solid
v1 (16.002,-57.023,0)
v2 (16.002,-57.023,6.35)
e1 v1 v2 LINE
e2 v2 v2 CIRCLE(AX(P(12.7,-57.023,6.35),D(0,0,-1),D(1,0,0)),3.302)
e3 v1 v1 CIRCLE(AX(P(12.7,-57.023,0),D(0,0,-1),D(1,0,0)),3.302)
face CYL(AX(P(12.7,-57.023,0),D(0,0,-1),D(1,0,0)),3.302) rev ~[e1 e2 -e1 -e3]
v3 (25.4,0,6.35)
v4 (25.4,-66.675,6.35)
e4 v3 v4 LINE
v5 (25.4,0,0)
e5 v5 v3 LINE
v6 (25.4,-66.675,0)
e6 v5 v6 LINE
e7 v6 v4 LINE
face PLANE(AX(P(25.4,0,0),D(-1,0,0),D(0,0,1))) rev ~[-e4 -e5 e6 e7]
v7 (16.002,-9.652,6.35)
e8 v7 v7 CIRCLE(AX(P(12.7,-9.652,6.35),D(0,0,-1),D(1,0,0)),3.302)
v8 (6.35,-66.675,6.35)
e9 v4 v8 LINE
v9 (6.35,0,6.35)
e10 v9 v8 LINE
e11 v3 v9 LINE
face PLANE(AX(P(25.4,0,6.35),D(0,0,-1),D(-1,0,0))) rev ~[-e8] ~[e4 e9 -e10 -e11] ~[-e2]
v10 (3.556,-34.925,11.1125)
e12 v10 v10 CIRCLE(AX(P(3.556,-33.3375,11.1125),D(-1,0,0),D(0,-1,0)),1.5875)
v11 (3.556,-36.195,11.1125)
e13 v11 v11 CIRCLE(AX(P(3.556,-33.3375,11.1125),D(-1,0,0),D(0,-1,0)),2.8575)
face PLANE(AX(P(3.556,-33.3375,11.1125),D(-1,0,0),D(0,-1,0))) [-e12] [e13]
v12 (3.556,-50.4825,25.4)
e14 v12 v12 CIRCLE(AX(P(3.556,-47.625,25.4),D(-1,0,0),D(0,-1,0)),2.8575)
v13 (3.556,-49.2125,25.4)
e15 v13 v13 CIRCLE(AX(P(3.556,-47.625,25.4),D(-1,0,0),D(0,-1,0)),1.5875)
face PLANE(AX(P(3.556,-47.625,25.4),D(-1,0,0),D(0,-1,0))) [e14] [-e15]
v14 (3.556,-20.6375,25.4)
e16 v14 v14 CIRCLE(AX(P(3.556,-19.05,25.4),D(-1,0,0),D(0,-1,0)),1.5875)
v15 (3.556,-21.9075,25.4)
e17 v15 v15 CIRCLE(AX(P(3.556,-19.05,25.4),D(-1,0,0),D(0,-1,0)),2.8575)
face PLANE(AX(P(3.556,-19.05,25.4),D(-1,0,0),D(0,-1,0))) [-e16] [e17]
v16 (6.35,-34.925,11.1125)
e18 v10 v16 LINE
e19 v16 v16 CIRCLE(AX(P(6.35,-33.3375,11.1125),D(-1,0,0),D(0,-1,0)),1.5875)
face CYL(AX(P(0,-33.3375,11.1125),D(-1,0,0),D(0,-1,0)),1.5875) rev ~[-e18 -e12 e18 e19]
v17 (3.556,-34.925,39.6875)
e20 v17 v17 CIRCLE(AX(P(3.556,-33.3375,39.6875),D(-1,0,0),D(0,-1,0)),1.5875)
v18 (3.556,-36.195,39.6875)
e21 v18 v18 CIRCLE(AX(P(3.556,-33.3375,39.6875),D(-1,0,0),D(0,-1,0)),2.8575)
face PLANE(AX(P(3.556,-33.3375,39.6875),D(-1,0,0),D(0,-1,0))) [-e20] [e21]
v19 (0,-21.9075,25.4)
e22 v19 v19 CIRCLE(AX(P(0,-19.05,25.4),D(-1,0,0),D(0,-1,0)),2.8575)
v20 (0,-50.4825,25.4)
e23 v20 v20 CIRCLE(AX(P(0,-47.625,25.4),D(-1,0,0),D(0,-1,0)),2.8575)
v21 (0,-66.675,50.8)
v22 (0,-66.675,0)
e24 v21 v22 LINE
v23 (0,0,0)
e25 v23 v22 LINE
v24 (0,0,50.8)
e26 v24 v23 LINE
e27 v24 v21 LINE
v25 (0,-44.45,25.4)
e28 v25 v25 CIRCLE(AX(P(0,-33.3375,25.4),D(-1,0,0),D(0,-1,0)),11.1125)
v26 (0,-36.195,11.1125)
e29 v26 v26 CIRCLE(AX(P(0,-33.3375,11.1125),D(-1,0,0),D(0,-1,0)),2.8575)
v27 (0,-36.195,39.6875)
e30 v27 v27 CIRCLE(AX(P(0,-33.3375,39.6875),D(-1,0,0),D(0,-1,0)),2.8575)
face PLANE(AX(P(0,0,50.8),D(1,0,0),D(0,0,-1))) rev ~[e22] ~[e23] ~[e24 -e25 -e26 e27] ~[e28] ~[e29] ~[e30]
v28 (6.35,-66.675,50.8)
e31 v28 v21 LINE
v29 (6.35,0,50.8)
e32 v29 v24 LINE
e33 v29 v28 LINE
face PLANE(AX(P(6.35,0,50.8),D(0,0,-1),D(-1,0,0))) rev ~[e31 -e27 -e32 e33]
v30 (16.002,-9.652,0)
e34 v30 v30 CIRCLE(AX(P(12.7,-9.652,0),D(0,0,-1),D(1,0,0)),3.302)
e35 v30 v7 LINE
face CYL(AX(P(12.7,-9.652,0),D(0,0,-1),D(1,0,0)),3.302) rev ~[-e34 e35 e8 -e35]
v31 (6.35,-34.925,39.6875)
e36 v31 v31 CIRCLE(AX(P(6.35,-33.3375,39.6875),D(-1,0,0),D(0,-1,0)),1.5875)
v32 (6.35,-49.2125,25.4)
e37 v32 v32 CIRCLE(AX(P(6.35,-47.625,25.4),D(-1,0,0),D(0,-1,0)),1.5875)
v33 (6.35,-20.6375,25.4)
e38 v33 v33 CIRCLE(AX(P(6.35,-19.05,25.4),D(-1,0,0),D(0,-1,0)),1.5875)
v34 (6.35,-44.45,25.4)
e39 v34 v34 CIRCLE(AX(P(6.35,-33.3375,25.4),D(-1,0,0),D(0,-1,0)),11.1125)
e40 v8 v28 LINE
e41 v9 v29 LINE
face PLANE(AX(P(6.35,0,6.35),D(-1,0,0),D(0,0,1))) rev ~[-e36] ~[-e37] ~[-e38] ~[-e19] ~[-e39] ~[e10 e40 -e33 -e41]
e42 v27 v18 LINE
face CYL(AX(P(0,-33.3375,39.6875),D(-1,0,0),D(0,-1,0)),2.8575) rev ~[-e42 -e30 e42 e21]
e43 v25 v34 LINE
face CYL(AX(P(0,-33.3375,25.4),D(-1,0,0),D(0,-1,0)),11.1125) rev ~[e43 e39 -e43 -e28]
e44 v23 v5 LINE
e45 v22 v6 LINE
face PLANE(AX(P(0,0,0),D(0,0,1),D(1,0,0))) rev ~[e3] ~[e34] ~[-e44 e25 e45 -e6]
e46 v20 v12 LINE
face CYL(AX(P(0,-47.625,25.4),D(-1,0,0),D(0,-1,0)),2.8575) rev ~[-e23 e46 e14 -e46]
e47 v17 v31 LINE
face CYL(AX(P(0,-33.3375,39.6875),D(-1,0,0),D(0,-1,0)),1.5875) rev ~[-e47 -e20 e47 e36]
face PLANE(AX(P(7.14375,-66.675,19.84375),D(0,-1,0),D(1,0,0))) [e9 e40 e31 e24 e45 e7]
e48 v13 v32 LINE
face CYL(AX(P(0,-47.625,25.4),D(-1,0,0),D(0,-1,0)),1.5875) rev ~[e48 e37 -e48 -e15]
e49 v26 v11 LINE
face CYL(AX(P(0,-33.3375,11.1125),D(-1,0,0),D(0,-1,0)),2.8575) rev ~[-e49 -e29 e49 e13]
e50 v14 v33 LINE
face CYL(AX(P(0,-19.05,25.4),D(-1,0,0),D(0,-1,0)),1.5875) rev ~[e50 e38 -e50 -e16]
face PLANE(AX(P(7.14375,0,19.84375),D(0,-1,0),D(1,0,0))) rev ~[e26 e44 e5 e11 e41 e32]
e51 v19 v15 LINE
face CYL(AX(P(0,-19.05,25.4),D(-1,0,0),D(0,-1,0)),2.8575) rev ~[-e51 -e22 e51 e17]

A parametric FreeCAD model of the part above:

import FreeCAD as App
import Part
import Sketcher
Q = App.Units.Quantity


def add_polygon(sketch, points):
    """Adds a closed chain of lines whose ends are joined by coincident constraints."""
    first, n = sketch.GeometryCount, len(points)
    for a, b in zip(points, points[1:] + points[:1]):
        sketch.addGeometry(Part.LineSegment(App.Vector(*a, 0), App.Vector(*b, 0)), False)
    for i in range(n):
        sketch.addConstraint(Sketcher.Constraint("Coincident", first + i, 2, first + (i + 1) % n, 1))

doc = App.newDocument("Part")
params = doc.addObject("Spreadsheet::Sheet", "Params")
for row, (alias, value) in enumerate([
    ("sketch1_width", "1 in"),
    ("sketch1_height", "2 in"),
    ("sketch1_width2", "0.75 in"),
    ("pad1_length", "2.625 in"),
    ("sketch2_diameter", "0.125 in"),
    ("sketch2_diameter2", "0.875 in"),
    ("sketch3_diameter", "0.225 in"),
    ("pocket2_length", "0.14 in"),
    ("sketch4_diameter", "0.26 in"),
], start=1):
    params.set(f"A{row}", alias)
    params.set(f"B{row}", "=" + value)
    params.setAlias(f"B{row}", alias)

body = doc.addObject("PartDesign::Body", "Body")

sketch1 = doc.addObject("Sketcher::SketchObject", "Sketch")
body.addObject(sketch1)
sketch1.AttachmentSupport = (doc.XZ_Plane, [""])
sketch1.MapMode = "FlatFace"
add_polygon(sketch1, [(0, 50.8), (0, 0), (25.4, 0), (25.4, 6.35), (6.35, 6.35), (6.35, 50.8)])
sketch1.addConstraint([
    Sketcher.Constraint("Vertical", 0),
    Sketcher.Constraint("Horizontal", 1),
    Sketcher.Constraint("Vertical", 2),
    Sketcher.Constraint("Horizontal", 3),
    Sketcher.Constraint("Vertical", 4),
    Sketcher.Constraint("Horizontal", 5),
    Sketcher.Constraint("Coincident", 0, 2, -1, 1),
    Sketcher.Constraint("Equal", 5, 2),
    Sketcher.Constraint("DistanceX", 1, 1, 1, 2, Q("1 in")),
    Sketcher.Constraint("DistanceY", 0, 2, 0, 1, Q("2 in")),
    Sketcher.Constraint("DistanceX", 3, 2, 3, 1, Q("0.75 in")),
])
sketch1.setExpression("Constraints[14]", "Params.sketch1_width")
sketch1.setExpression("Constraints[15]", "Params.sketch1_height")
sketch1.setExpression("Constraints[16]", "Params.sketch1_width2")
pad1 = doc.addObject("PartDesign::Pad", "Pad")
body.addObject(pad1)
pad1.Profile = sketch1
pad1.setExpression("Length", "Params.pad1_length")

sketch2 = doc.addObject("Sketcher::SketchObject", "Sketch001")
body.addObject(sketch2)
sketch2.AttachmentSupport = (doc.YZ_Plane, [""])
sketch2.MapMode = "FlatFace"
sketch2.addGeometry([
    Part.Circle(App.Vector(-19.05, 25.4, 0), App.Vector(0, 0, 1), 1.5875),
    Part.Circle(App.Vector(-33.3375, 39.6875, 0), App.Vector(0, 0, 1), 1.5875),
    Part.Circle(App.Vector(-33.3375, 25.4, 0), App.Vector(0, 0, 1), 11.1125),
    Part.Circle(App.Vector(-47.625, 25.4, 0), App.Vector(0, 0, 1), 1.5875),
    Part.Circle(App.Vector(-33.3375, 11.1125, 0), App.Vector(0, 0, 1), 1.5875),
], False)
sketch2.addConstraint([
    Sketcher.Constraint("Equal", 0, 1),
    Sketcher.Constraint("Equal", 1, 3),
    Sketcher.Constraint("Equal", 3, 4),
    Sketcher.Constraint("Horizontal", 0, 3, 2, 3),
    Sketcher.Constraint("Horizontal", 2, 3, 3, 3),
    Sketcher.Constraint("Vertical", 1, 3, 2, 3),
    Sketcher.Constraint("Vertical", 2, 3, 4, 3),
    Sketcher.Constraint("Diameter", 0, Q("0.125 in")),
    Sketcher.Constraint("Diameter", 2, Q("0.875 in")),
    Sketcher.Constraint("DistanceY", -1, 1, 0, 3, Q("1 in")),
    Sketcher.Constraint("DistanceX", 0, 3, -1, 1, Q("0.75 in")),
    Sketcher.Constraint("DistanceX", 1, 3, -1, 1, Q("1.3125 in")),
    Sketcher.Constraint("DistanceY", -1, 1, 1, 3, Q("1.5625 in")),
    Sketcher.Constraint("DistanceX", 3, 3, -1, 1, Q("1.875 in")),
    Sketcher.Constraint("DistanceY", -1, 1, 4, 3, Q("0.4375 in")),
])
sketch2.setExpression("Constraints[7]", "Params.sketch2_diameter")
sketch2.setExpression("Constraints[8]", "Params.sketch2_diameter2")
pocket1 = doc.addObject("PartDesign::Pocket", "Pocket")
body.addObject(pocket1)
pocket1.Profile = sketch2
pocket1.Type = "ThroughAll"
pocket1.Reversed = True

sketch3 = doc.addObject("Sketcher::SketchObject", "Sketch002")
body.addObject(sketch3)
sketch3.AttachmentSupport = (doc.YZ_Plane, [""])
sketch3.MapMode = "FlatFace"
sketch3.addGeometry([
    Part.Circle(App.Vector(-33.3375, 39.6875, 0), App.Vector(0, 0, 1), 2.8575),
    Part.Circle(App.Vector(-47.625, 25.4, 0), App.Vector(0, 0, 1), 2.8575),
    Part.Circle(App.Vector(-33.3375, 11.1125, 0), App.Vector(0, 0, 1), 2.8575),
    Part.Circle(App.Vector(-19.05, 25.4, 0), App.Vector(0, 0, 1), 2.8575),
], False)
sketch3.addConstraint([
    Sketcher.Constraint("Equal", 0, 1),
    Sketcher.Constraint("Equal", 1, 2),
    Sketcher.Constraint("Equal", 2, 3),
    Sketcher.Constraint("Horizontal", 1, 3, 3, 3),
    Sketcher.Constraint("Vertical", 0, 3, 2, 3),
    Sketcher.Constraint("Diameter", 0, Q("0.225 in")),
    Sketcher.Constraint("DistanceY", -1, 1, 1, 3, Q("1 in")),
    Sketcher.Constraint("DistanceX", 3, 3, -1, 1, Q("0.75 in")),
    Sketcher.Constraint("DistanceX", 0, 3, -1, 1, Q("1.3125 in")),
    Sketcher.Constraint("DistanceY", -1, 1, 0, 3, Q("1.5625 in")),
    Sketcher.Constraint("DistanceX", 1, 3, -1, 1, Q("1.875 in")),
    Sketcher.Constraint("DistanceY", -1, 1, 2, 3, Q("0.4375 in")),
])
sketch3.setExpression("Constraints[5]", "Params.sketch3_diameter")
pocket2 = doc.addObject("PartDesign::Pocket", "Pocket001")
body.addObject(pocket2)
pocket2.Profile = sketch3
pocket2.setExpression("Length", "Params.pocket2_length")
pocket2.Reversed = True

sketch4 = doc.addObject("Sketcher::SketchObject", "Sketch003")
body.addObject(sketch4)
sketch4.AttachmentSupport = (doc.XY_Plane, [""])
sketch4.MapMode = "FlatFace"
sketch4.addGeometry([
    Part.Circle(App.Vector(12.7, -9.652, 0), App.Vector(0, 0, 1), 3.302),
    Part.Circle(App.Vector(12.7, -57.023, 0), App.Vector(0, 0, 1), 3.302),
], False)
sketch4.addConstraint([
    Sketcher.Constraint("Equal", 0, 1),
    Sketcher.Constraint("Vertical", 0, 3, 1, 3),
    Sketcher.Constraint("Diameter", 0, Q("0.26 in")),
    Sketcher.Constraint("DistanceX", -1, 1, 0, 3, Q("0.5 in")),
    Sketcher.Constraint("DistanceY", 0, 3, -1, 1, Q("0.38 in")),
    Sketcher.Constraint("DistanceY", 1, 3, -1, 1, Q("2.245 in")),
])
sketch4.setExpression("Constraints[2]", "Params.sketch4_diameter")
pocket3 = doc.addObject("PartDesign::Pocket", "Pocket002")
body.addObject(pocket3)
pocket3.Profile = sketch4
pocket3.Type = "ThroughAll"
pocket3.Reversed = True

doc.recompute()
